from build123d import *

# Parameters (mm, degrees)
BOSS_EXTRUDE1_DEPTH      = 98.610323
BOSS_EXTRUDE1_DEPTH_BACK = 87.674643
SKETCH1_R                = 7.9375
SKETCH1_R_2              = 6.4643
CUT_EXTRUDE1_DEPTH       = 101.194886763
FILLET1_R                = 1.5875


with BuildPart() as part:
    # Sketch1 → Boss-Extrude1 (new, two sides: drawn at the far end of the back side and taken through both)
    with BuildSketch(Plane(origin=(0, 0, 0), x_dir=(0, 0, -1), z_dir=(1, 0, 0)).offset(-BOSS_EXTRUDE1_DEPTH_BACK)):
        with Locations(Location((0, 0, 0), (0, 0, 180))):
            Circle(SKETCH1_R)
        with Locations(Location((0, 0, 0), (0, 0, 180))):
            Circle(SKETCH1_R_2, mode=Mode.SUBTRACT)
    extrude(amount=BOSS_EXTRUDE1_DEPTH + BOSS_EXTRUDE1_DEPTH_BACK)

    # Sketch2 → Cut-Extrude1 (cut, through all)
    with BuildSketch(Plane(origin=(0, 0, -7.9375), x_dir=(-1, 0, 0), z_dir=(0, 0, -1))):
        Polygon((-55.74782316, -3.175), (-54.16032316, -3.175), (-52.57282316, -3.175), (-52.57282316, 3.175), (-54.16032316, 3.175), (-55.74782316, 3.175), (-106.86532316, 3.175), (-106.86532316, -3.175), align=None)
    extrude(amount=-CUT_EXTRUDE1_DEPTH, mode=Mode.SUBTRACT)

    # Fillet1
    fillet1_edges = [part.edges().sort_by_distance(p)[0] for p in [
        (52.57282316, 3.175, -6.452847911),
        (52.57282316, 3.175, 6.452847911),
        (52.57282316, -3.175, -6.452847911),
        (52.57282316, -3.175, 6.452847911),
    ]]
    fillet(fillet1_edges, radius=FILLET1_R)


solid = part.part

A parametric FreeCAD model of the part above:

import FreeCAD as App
import Part
import Sketcher
Q = App.Units.Quantity


def edges_at(feature, points):
    """Names of the edges that pass closest to the given points."""
    edges = feature.Shape.Edges
    near = lambda p: min(range(len(edges)), key=lambda i: edges[i].distToShape(Part.Vertex(*p))[0])
    return sorted({f"Edge{near(p) + 1}" for p in points})


def add_polygon(sketch, points):
    """Adds a closed chain of lines whose ends are joined by coincident constraints."""
    first, n = sketch.GeometryCount, len(points)
    for a, b in zip(points, points[1:] + points[:1]):
        sketch.addGeometry(Part.LineSegment(App.Vector(*a, 0), App.Vector(*b, 0)), False)
    for i in range(n):
        sketch.addConstraint(Sketcher.Constraint("Coincident", first + i, 2, first + (i + 1) % n, 1))

doc = App.newDocument("Part")
params = doc.addObject("Spreadsheet::Sheet", "Params")
for row, (alias, value) in enumerate([
    ("sketch1_diameter", "0.625 in"),
    ("sketch1_diameter2", "0.509 in"),
    ("pad1_length", "98.610323 mm"),
    ("pad1_length2", "87.674643 mm"),
    ("sketch2_height", "0.25 in"),
    ("fillet_radius", "0.0625 in"),
], start=1):
    params.set(f"A{row}", alias)
    params.set(f"B{row}", "=" + value)
    params.setAlias(f"B{row}", alias)

body = doc.addObject("PartDesign::Body", "Body")

# Sketch on YZ plane
sketch1 = body.newObject("Sketcher::SketchObject", "Sketch")
sketch1.AttachmentSupport = (doc.getObject("YZ_Plane"), [""])
sketch1.MapMode = "FlatFace"
sketch1.addGeometry([
    Part.Circle(App.Vector(0, 0, 0), App.Vector(0, 0, 1), 7.9375),
    Part.Circle(App.Vector(0, 0, 0), App.Vector(0, 0, 1), 6.4643),
], False)
sketch1.addConstraint([
    Sketcher.Constraint("Coincident", 0, 3, -1, 1),
    Sketcher.Constraint("Coincident", 1, 3, -1, 1),
    Sketcher.Constraint("Diameter", 0, Q("0.625 in")),
    Sketcher.Constraint("Diameter", 1, Q("0.509 in")),
])
sketch1.setExpression("Constraints[2]", "Params.sketch1_diameter")
sketch1.setExpression("Constraints[3]", "Params.sketch1_diameter2")
pad1 = body.newObject("PartDesign::Pad", "Pad")
pad1.Profile = sketch1
pad1.Type = "TwoLengths"
pad1.setExpression("Length", "Params.pad1_length")
pad1.setExpression("Length2", "Params.pad1_length2")

# Sketch on XY plane
sketch2 = body.newObject("Sketcher::SketchObject", "Sketch001")
sketch2.AttachmentSupport = (doc.getObject("XY_Plane"), [""])
sketch2.MapMode = "FlatFace"
sketch2.AttachmentOffset = App.Placement(App.Vector(0, 0, -0.3125 * 25.4), App.Rotation())
add_polygon(sketch2, [(52.572823, -3.175), (52.572823, 3.175), (106.865323, 3.175), (106.865323, -3.175)])  # lines 0-3
sketch2.addConstraint([
    Sketcher.Constraint("Vertical", 0),
    Sketcher.Constraint("Horizontal", 1),
    Sketcher.Constraint("Vertical", 2),
    Sketcher.Constraint("Horizontal", 3),
    Sketcher.Constraint("DistanceY", 0, 1, 0, 2, Q("0.25 in")),
    Sketcher.Constraint("DistanceX", 1, 1, 1, 2, Q("2.1375 in")),
    Sketcher.Constraint("DistanceY", -1, 1, 0, 2, Q("0.125 in")),
    Sketcher.Constraint("DistanceX", -1, 1, 0, 2, Q("52.572823 mm")),
])
sketch2.setExpression("Constraints[8]", "Params.sketch2_height")
pocket1 = body.newObject("PartDesign::Pocket", "Pocket")
pocket1.Profile = sketch2
pocket1.Type = "ThroughAll"
pocket1.Reversed = True
doc.recompute()

fillet = body.newObject("PartDesign::Fillet", "Fillet")
fillet.Base = (pocket1, edges_at(pocket1, [
    (52.573, 3.175, -6.453),
    (52.573, 3.175, 6.453),
    (52.573, -3.175, -6.453),
    (52.573, -3.175, 6.453),
]))
fillet.setExpression("Radius", "Params.fillet_radius")

doc.recompute()
